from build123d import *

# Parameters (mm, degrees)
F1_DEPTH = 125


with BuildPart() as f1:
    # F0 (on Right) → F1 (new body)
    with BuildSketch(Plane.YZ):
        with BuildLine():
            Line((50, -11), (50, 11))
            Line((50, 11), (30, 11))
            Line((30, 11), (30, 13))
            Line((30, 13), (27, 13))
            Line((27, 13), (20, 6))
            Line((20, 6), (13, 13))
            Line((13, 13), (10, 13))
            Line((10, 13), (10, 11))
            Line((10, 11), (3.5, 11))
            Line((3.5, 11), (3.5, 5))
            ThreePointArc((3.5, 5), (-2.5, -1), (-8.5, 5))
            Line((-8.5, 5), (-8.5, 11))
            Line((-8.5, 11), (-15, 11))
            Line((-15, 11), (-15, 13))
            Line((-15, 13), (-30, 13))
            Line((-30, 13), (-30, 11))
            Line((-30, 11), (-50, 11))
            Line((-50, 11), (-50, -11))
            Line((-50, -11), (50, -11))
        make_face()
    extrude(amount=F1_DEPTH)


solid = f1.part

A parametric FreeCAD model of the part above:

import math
import FreeCAD as App
import Part
import Sketcher
from FreeCAD import Vector

doc = App.newDocument("Part")
params = doc.addObject("Spreadsheet::Sheet", "Params")
for row, (alias, value) in enumerate([
    ("sketch1_radius", "6 mm"),
    ("sketch1_width", "20 mm"),
    ("sketch1_width2", "3 mm"),
    ("sketch1_width3", "15 mm"),
    ("sketch1_width4", "100 mm"),
    ("pad1_length", "125 mm"),
], start=1):
    params.set(f"A{row}", alias)
    params.set(f"B{row}", "=" + value)
    params.setAlias(f"B{row}", alias)

body = doc.addObject("PartDesign::Body", "Body")

# Sketch on YZ plane
sketch1 = doc.addObject("Sketcher::SketchObject", "Sketch")
body.addObject(sketch1)
sketch1.AttachmentSupport = (doc.YZ_Plane, [""])
sketch1.MapMode = "FlatFace"
sketch1.addGeometry(Part.LineSegment(Vector(50, -11, 0), Vector(50, 11, 0)), False)
sketch1.addGeometry(Part.LineSegment(Vector(50, 11, 0), Vector(30, 11, 0)), False)
sketch1.addGeometry(Part.LineSegment(Vector(30, 11, 0), Vector(30, 13, 0)), False)
sketch1.addGeometry(Part.LineSegment(Vector(30, 13, 0), Vector(27, 13, 0)), False)
sketch1.addGeometry(Part.LineSegment(Vector(27, 13, 0), Vector(20, 6, 0)), False)
sketch1.addGeometry(Part.LineSegment(Vector(20, 6, 0), Vector(13, 13, 0)), False)
sketch1.addGeometry(Part.LineSegment(Vector(13, 13, 0), Vector(10, 13, 0)), False)
sketch1.addGeometry(Part.LineSegment(Vector(10, 13, 0), Vector(10, 11, 0)), False)
sketch1.addGeometry(Part.LineSegment(Vector(10, 11, 0), Vector(3.5, 11, 0)), False)
sketch1.addGeometry(Part.LineSegment(Vector(3.5, 11, 0), Vector(3.5, 5, 0)), False)
sketch1.addGeometry(Part.ArcOfCircle(Part.Circle(Vector(-2.5, 5, 0), Vector(0, 0, 1), 6), math.radians(180), math.radians(360)), False)
sketch1.addGeometry(Part.LineSegment(Vector(-8.5, 5, 0), Vector(-8.5, 11, 0)), False)
sketch1.addGeometry(Part.LineSegment(Vector(-8.5, 11, 0), Vector(-15, 11, 0)), False)
sketch1.addGeometry(Part.LineSegment(Vector(-15, 11, 0), Vector(-15, 13, 0)), False)
sketch1.addGeometry(Part.LineSegment(Vector(-15, 13, 0), Vector(-30, 13, 0)), False)
sketch1.addGeometry(Part.LineSegment(Vector(-30, 13, 0), Vector(-30, 11, 0)), False)
sketch1.addGeometry(Part.LineSegment(Vector(-30, 11, 0), Vector(-50, 11, 0)), False)
sketch1.addGeometry(Part.LineSegment(Vector(-50, 11, 0), Vector(-50, -11, 0)), False)
sketch1.addGeometry(Part.LineSegment(Vector(-50, -11, 0), Vector(50, -11, 0)), False)
sketch1.addConstraint(Sketcher.Constraint("Coincident", 0, 2, 1, 1))
sketch1.addConstraint(Sketcher.Constraint("Coincident", 1, 2, 2, 1))
sketch1.addConstraint(Sketcher.Constraint("Coincident", 2, 2, 3, 1))
sketch1.addConstraint(Sketcher.Constraint("Coincident", 3, 2, 4, 1))
sketch1.addConstraint(Sketcher.Constraint("Coincident", 4, 2, 5, 1))
sketch1.addConstraint(Sketcher.Constraint("Coincident", 5, 2, 6, 1))
sketch1.addConstraint(Sketcher.Constraint("Coincident", 6, 2, 7, 1))
sketch1.addConstraint(Sketcher.Constraint("Coincident", 7, 2, 8, 1))
sketch1.addConstraint(Sketcher.Constraint("Coincident", 8, 2, 9, 1))
sketch1.addConstraint(Sketcher.Constraint("Tangent", 9, 2, 10, 2))
sketch1.addConstraint(Sketcher.Constraint("Tangent", 10, 1, 11, 1))
sketch1.addConstraint(Sketcher.Constraint("Coincident", 11, 2, 12, 1))
sketch1.addConstraint(Sketcher.Constraint("Coincident", 12, 2, 13, 1))
sketch1.addConstraint(Sketcher.Constraint("Coincident", 13, 2, 14, 1))
sketch1.addConstraint(Sketcher.Constraint("Coincident", 14, 2, 15, 1))
sketch1.addConstraint(Sketcher.Constraint("Coincident", 15, 2, 16, 1))
sketch1.addConstraint(Sketcher.Constraint("Coincident", 16, 2, 17, 1))
sketch1.addConstraint(Sketcher.Constraint("Coincident", 17, 2, 18, 1))
sketch1.addConstraint(Sketcher.Constraint("Coincident", 18, 2, 0, 1))
sketch1.addConstraint(Sketcher.Constraint("Vertical", 0))
sketch1.addConstraint(Sketcher.Constraint("Horizontal", 1))
sketch1.addConstraint(Sketcher.Constraint("Vertical", 2))
sketch1.addConstraint(Sketcher.Constraint("Horizontal", 3))
sketch1.addConstraint(Sketcher.Constraint("Horizontal", 6))
sketch1.addConstraint(Sketcher.Constraint("Vertical", 7))
sketch1.addConstraint(Sketcher.Constraint("Horizontal", 8))
sketch1.addConstraint(Sketcher.Constraint("Vertical", 9))
sketch1.addConstraint(Sketcher.Constraint("Vertical", 11))
sketch1.addConstraint(Sketcher.Constraint("Horizontal", 12))
sketch1.addConstraint(Sketcher.Constraint("Vertical", 13))
sketch1.addConstraint(Sketcher.Constraint("Horizontal", 14))
sketch1.addConstraint(Sketcher.Constraint("Vertical", 15))
sketch1.addConstraint(Sketcher.Constraint("Horizontal", 16))
sketch1.addConstraint(Sketcher.Constraint("Vertical", 17))
sketch1.addConstraint(Sketcher.Constraint("Horizontal", 18))
sketch1.addConstraint(Sketcher.Constraint("Symmetric", 0, 2, 17, 2, -1, 1))
sketch1.addConstraint(Sketcher.Constraint("Symmetric", 2, 2, 14, 2, -2))
sketch1.addConstraint(Sketcher.Constraint("Perpendicular", 4, 5))
sketch1.addConstraint(Sketcher.Constraint("Horizontal", 3, 2, 5, 2))
sketch1.addConstraint(Sketcher.Constraint("Horizontal", 1, 2, 7, 2))
sketch1.addConstraint(Sketcher.Constraint("Horizontal", 8, 2, 11, 2))
sketch1.addConstraint(Sketcher.Constraint("Horizontal", 12, 2, 15, 2))
sketch1.addConstraint(Sketcher.Constraint("Equal", 3, 6))
sketch1.addConstraint(Sketcher.Constraint("Equal", 8, 12))
sketch1.addConstraint(Sketcher.Constraint("Equal", 4, 5))
sketch1.addConstraint(Sketcher.Constraint("Radius", 10, 6.0))
sketch1.addConstraint(Sketcher.Constraint("DistanceX", 1, 2, 1, 1, 20.0))
sketch1.addConstraint(Sketcher.Constraint("DistanceX", 3, 2, 3, 1, 3.0))
sketch1.addConstraint(Sketcher.Constraint("DistanceX", 14, 2, 14, 1, 15.0))
sketch1.addConstraint(Sketcher.Constraint("DistanceX", 18, 1, 18, 2, 100.0))
sketch1.addConstraint(Sketcher.Constraint("DistanceY", 0, 1, 0, 2, 22.0))
sketch1.addConstraint(Sketcher.Constraint("DistanceY", 2, 1, 2, 2, 2.0))
sketch1.addConstraint(Sketcher.Constraint("DistanceY", 9, 2, 9, 1, 6.0))
sketch1.addConstraint(Sketcher.Constraint("DistanceX", 8, 2, 8, 1, 6.5))
sketch1.setExpression("Constraints[45]", "Params.sketch1_radius")
sketch1.setExpression("Constraints[46]", "Params.sketch1_width")
sketch1.setExpression("Constraints[47]", "Params.sketch1_width2")
sketch1.setExpression("Constraints[48]", "Params.sketch1_width3")
sketch1.setExpression("Constraints[49]", "Params.sketch1_width4")
pad1 = doc.addObject("PartDesign::Pad", "Pad")
body.addObject(pad1)
pad1.Profile = sketch1
pad1.setExpression("Length", "Params.pad1_length")

doc.recompute()
